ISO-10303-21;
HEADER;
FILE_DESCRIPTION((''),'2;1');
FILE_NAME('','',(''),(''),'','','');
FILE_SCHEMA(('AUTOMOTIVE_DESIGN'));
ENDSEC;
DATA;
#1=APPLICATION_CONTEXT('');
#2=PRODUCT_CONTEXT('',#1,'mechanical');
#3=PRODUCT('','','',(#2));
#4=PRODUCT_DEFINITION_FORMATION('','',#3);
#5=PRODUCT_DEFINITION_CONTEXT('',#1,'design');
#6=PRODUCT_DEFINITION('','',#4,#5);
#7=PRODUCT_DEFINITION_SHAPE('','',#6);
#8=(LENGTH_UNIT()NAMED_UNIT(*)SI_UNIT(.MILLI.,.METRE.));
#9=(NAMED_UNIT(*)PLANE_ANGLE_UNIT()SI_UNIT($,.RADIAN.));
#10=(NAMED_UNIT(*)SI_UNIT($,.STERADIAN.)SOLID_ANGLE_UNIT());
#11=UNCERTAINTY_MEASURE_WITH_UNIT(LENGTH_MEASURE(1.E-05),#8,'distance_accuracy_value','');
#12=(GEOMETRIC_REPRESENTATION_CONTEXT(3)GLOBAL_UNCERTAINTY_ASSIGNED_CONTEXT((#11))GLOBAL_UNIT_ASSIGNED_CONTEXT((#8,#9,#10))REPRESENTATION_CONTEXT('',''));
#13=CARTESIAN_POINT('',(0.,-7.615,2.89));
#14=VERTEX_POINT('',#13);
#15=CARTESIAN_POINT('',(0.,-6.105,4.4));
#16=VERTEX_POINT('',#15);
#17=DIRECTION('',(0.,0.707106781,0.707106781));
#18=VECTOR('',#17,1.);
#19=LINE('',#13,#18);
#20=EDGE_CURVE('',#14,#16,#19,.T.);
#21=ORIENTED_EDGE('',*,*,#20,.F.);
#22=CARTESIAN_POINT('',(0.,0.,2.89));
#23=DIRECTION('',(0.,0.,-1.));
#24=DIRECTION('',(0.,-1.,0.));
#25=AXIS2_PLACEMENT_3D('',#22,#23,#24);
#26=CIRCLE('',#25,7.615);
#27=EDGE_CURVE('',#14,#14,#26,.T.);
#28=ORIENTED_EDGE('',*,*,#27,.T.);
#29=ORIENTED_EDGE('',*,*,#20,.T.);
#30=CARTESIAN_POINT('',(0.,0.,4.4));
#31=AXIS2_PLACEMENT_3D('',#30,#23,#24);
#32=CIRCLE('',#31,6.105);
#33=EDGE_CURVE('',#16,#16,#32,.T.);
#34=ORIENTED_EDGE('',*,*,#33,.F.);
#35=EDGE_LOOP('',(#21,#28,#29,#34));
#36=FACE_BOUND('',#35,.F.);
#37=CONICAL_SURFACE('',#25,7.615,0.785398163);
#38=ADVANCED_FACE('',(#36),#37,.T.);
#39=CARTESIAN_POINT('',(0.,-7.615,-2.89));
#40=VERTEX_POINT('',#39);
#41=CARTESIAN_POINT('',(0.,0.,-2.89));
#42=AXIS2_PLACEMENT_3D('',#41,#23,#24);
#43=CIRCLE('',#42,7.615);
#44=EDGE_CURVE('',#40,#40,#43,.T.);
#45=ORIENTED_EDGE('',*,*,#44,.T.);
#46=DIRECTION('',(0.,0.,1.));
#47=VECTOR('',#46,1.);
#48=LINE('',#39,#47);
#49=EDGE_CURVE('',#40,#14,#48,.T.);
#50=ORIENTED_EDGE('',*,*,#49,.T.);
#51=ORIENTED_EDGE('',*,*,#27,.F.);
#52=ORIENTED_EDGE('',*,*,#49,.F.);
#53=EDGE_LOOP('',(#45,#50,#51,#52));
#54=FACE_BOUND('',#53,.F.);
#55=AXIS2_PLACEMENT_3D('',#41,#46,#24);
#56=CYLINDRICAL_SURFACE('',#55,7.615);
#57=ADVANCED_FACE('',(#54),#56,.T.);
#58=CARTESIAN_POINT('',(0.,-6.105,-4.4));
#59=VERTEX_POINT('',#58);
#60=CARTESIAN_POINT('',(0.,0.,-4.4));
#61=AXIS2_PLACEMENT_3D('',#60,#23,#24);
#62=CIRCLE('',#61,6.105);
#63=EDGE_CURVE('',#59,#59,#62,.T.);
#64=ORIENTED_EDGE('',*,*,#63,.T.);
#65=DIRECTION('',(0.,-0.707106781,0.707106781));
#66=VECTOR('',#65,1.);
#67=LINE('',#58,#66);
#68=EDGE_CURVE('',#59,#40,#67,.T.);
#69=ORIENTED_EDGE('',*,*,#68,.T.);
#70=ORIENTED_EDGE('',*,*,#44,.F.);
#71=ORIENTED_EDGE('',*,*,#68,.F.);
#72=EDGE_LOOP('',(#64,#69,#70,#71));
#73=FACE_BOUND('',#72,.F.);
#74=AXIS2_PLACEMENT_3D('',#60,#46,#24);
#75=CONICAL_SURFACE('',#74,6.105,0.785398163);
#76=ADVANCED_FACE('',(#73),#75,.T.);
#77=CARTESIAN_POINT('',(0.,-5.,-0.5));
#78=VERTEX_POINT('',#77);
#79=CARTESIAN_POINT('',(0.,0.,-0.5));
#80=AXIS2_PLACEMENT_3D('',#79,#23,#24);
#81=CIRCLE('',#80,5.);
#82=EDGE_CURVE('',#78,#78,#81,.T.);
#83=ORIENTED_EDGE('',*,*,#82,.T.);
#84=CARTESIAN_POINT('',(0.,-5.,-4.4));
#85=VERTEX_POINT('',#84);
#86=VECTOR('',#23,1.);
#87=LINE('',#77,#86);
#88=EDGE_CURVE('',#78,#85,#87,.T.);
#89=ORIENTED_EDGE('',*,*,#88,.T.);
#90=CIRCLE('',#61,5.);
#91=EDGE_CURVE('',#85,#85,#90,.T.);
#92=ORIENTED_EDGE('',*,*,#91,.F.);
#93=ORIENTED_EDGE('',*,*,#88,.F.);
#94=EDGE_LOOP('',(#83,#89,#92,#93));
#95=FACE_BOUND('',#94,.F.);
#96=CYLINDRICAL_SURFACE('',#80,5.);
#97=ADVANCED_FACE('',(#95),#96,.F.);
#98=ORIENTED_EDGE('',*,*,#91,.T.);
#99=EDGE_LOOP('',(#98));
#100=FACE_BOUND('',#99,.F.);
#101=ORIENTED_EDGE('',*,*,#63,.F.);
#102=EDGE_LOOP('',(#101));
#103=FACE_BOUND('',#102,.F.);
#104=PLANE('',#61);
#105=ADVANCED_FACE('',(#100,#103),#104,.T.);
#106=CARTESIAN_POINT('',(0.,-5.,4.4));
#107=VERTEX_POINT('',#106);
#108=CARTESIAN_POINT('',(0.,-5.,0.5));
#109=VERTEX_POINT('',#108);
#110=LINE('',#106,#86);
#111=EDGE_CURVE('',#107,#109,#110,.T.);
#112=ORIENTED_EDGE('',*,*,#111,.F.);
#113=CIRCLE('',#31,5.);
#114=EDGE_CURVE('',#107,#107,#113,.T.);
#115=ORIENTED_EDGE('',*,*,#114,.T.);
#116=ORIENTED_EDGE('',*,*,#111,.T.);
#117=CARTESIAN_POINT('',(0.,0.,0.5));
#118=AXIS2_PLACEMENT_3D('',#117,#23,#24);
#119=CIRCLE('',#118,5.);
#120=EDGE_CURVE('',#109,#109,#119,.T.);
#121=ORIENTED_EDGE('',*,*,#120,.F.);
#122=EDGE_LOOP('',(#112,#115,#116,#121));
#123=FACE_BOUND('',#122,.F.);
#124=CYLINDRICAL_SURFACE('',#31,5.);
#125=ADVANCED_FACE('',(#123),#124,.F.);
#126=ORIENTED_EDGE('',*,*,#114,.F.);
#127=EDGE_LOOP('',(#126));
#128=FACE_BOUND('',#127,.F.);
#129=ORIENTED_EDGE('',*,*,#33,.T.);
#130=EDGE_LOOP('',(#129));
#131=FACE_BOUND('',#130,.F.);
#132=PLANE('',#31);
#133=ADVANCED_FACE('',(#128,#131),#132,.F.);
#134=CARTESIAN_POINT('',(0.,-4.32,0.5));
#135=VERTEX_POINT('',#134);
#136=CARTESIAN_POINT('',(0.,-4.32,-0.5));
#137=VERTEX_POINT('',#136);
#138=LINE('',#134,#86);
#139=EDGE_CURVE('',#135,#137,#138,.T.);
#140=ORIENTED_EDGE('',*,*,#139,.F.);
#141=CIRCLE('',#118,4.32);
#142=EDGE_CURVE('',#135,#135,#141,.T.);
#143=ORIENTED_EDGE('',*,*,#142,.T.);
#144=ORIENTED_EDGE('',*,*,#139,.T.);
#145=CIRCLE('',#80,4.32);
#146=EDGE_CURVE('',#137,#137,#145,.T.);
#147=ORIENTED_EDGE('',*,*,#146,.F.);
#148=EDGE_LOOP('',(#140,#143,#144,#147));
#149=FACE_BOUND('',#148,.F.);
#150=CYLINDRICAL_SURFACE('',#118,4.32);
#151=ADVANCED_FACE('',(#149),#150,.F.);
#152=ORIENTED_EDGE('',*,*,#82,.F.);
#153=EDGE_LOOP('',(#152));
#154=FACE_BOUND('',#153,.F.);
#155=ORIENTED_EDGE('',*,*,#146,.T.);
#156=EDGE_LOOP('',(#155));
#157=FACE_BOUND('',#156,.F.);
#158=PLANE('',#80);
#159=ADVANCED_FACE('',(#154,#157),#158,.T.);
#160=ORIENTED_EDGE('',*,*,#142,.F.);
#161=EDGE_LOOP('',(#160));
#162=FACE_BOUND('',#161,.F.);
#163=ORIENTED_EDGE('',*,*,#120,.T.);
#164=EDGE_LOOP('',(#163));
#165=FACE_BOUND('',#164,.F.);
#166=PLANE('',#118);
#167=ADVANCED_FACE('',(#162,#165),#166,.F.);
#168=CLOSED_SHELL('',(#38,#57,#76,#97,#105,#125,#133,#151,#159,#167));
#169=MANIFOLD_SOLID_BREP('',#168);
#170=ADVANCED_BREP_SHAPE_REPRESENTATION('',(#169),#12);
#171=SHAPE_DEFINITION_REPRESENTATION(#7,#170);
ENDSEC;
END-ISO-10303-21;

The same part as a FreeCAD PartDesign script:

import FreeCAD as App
import Part
import Sketcher
from FreeCAD import Vector
Q = App.Units.Quantity

doc = App.newDocument("Part")
body = doc.addObject("PartDesign::Body", "Body")

# Sketch on YZ plane
sketch1 = doc.addObject("Sketcher::SketchObject", "Sketch")
body.addObject(sketch1)
sketch1.AttachmentSupport = (doc.YZ_Plane, [""])
sketch1.MapMode = "FlatFace"
sketch1.addGeometry([
    Part.LineSegment(Vector(-4.3, 0.5, 0), Vector(-5, 0.5, 0)),  # 0
    Part.LineSegment(Vector(-5, 0.5, 0), Vector(-5, 4.4, 0)),  # 1
    Part.LineSegment(Vector(-5, 4.4, 0), Vector(-6.1, 4.4, 0)),  # 2
    Part.LineSegment(Vector(-6.1, 4.4, 0), Vector(-7.6, 2.9, 0)),  # 3
    Part.LineSegment(Vector(-7.6, 2.9, 0), Vector(-7.6, -2.9, 0)),  # 4
    Part.LineSegment(Vector(-7.6, -2.9, 0), Vector(-6.1, -4.4, 0)),  # 5
    Part.LineSegment(Vector(-6.1, -4.4, 0), Vector(-5, -4.4, 0)),  # 6
    Part.LineSegment(Vector(-5, -4.4, 0), Vector(-5, -0.5, 0)),  # 7
    Part.LineSegment(Vector(-5, -0.5, 0), Vector(-4.3, -0.5, 0)),  # 8
    Part.LineSegment(Vector(-4.3, -0.5, 0), Vector(-4.3, 0.5, 0)),  # 9
], False)
sketch1.addConstraint([
    Sketcher.Constraint("Coincident", 0, 2, 1, 1),
    Sketcher.Constraint("Coincident", 1, 2, 2, 1),
    Sketcher.Constraint("Coincident", 2, 2, 3, 1),
    Sketcher.Constraint("Coincident", 3, 2, 4, 1),
    Sketcher.Constraint("Coincident", 4, 2, 5, 1),
    Sketcher.Constraint("Coincident", 5, 2, 6, 1),
    Sketcher.Constraint("Coincident", 6, 2, 7, 1),
    Sketcher.Constraint("Coincident", 7, 2, 8, 1),
    Sketcher.Constraint("Coincident", 8, 2, 9, 1),
    Sketcher.Constraint("Coincident", 9, 2, 0, 1),
    Sketcher.Constraint("Horizontal", 0),
    Sketcher.Constraint("Vertical", 1),
    Sketcher.Constraint("Horizontal", 2),
    Sketcher.Constraint("Vertical", 4),
    Sketcher.Constraint("Horizontal", 6),
    Sketcher.Constraint("Vertical", 7),
    Sketcher.Constraint("Horizontal", 8),
    Sketcher.Constraint("Vertical", 9),
    Sketcher.Constraint("Symmetric", 2, 2, 5, 2, -1),
    Sketcher.Constraint("Symmetric", 0, 2, 7, 2, -1),
    Sketcher.Constraint("Perpendicular", 3, 5),
    Sketcher.Constraint("Equal", 3, 5),
    Sketcher.Constraint("DistanceY", 9, 1, 9, 2, Q("1 mm")),
    Sketcher.Constraint("DistanceY", 1, 1, 1, 2, Q("3.9 mm")),
    Sketcher.Constraint("DistanceX", 0, 2, 0, 1, Q("0.68 mm")),
    Sketcher.Constraint("DistanceY", 4, 2, 4, 1, Q("5.78 mm")),
    Sketcher.Constraint("DistanceX", 2, 2, 2, 1, Q("1.105 mm")),
    Sketcher.Constraint("DistanceX", 0, 2, -1, 1, Q("5 mm")),
])
revolution = doc.addObject("PartDesign::Revolution", "Revolution")
body.addObject(revolution)
revolution.Profile = sketch1
revolution.ReferenceAxis = (sketch1, ["V_Axis"])
revolution.Angle = 360

doc.recompute()
